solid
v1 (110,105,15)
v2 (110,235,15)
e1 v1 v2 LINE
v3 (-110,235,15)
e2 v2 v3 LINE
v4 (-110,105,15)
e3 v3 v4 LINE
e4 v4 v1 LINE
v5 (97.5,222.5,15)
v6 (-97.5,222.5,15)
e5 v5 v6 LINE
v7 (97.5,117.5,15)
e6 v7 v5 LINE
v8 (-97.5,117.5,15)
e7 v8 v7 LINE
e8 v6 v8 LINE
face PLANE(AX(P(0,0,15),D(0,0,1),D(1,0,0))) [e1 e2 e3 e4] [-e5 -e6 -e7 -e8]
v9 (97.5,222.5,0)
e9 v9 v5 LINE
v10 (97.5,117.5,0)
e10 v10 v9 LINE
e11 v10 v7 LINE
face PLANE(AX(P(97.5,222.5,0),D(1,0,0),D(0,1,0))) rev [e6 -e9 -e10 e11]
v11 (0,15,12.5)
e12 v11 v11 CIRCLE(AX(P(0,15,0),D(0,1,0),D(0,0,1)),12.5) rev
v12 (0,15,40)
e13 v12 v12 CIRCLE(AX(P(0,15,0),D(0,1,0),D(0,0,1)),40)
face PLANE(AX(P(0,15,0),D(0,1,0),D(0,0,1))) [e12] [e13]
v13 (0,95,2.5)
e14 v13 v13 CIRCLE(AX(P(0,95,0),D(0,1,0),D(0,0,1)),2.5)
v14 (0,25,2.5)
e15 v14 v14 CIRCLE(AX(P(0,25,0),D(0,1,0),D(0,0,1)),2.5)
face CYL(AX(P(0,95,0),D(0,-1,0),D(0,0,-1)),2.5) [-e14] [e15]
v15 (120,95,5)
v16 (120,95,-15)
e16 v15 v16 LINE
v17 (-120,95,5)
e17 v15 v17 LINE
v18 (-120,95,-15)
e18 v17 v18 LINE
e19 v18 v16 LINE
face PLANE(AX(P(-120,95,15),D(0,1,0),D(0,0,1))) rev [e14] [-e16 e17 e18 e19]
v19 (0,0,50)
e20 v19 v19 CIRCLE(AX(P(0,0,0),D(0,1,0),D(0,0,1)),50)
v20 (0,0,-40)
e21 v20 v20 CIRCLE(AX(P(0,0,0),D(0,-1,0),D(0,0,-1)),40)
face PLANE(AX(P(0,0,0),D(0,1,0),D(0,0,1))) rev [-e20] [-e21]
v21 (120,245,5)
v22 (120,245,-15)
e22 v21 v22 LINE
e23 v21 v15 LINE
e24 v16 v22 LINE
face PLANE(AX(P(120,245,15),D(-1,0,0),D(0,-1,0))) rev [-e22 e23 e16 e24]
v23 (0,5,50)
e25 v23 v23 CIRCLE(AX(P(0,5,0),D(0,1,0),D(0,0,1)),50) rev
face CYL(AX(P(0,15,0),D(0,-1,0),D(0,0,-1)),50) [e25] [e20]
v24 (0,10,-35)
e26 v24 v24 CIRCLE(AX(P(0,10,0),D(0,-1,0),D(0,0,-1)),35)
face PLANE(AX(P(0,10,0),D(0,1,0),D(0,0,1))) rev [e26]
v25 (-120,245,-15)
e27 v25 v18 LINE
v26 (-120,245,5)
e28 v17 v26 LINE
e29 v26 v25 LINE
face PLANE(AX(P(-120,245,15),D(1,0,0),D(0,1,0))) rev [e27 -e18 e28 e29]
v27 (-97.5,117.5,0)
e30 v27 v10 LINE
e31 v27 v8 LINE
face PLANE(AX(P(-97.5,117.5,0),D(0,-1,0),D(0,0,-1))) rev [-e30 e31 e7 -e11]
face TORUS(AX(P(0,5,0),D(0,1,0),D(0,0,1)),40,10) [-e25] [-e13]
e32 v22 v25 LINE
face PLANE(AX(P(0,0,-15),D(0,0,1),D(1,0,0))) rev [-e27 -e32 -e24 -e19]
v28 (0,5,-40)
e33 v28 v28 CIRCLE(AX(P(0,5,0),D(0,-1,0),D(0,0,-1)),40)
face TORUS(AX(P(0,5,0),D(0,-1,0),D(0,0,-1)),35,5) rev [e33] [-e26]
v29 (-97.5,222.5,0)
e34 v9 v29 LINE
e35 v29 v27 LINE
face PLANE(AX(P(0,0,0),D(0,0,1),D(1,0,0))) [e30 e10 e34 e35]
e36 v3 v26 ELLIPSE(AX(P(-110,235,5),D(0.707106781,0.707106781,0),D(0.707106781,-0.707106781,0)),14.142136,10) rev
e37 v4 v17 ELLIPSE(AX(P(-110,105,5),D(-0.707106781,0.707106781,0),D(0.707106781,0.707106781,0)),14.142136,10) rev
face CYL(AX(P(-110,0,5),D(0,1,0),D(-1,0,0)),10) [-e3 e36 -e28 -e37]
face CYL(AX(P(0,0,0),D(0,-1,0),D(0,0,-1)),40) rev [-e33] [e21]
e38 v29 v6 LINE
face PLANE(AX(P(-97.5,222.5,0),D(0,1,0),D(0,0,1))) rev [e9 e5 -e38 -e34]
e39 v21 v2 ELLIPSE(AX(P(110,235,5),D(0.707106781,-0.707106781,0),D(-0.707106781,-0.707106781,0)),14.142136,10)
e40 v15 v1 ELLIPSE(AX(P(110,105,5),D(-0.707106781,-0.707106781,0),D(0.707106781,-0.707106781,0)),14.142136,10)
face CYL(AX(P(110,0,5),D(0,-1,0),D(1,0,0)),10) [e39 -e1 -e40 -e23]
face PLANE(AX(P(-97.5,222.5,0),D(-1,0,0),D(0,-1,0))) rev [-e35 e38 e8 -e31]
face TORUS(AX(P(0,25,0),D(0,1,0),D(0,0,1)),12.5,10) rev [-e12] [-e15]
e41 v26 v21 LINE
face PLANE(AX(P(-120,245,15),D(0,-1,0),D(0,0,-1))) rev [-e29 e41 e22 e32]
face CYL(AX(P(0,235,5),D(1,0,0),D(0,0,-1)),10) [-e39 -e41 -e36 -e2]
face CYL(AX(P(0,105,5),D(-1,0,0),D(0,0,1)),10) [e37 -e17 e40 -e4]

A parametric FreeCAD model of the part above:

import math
import FreeCAD as App
import Part
import Sketcher
from FreeCAD import Vector
Q = App.Units.Quantity


def edges_at(feature, points):
    """Names of the edges that pass closest to the given points."""
    edges = feature.Shape.Edges
    near = lambda p: min(range(len(edges)), key=lambda i: edges[i].distToShape(Part.Vertex(*p))[0])
    return sorted({f"Edge{near(p) + 1}" for p in points})

doc = App.newDocument("Part")
params = doc.addObject("Spreadsheet::Sheet", "Params")
for row, (alias, value) in enumerate([
    ("sketch1_diameter", "100 mm"),
    ("pad1_length", "15 mm"),
    ("fillet_radius", "10 mm"),
    ("sketch2_radius", "5 mm"),
    ("sketch2_width", "40 mm"),
    ("sketch2_height", "5 mm"),
    ("groove_angle", "360 deg"),
    ("sketch3_diameter", "5 mm"),
    ("pad2_length", "80 mm"),
    ("fillet2_radius", "10 mm"),
    ("sketch4_width", "240 mm"),
    ("sketch4_height", "150 mm"),
    ("pad3_length", "30 mm"),
    ("sketch5_width", "195 mm"),
    ("sketch5_height", "105 mm"),
    ("pocket1_length", "15 mm"),
    ("fillet3_radius", "10 mm"),
], start=1):
    params.set(f"A{row}", alias)
    params.set(f"B{row}", "=" + value)
    params.setAlias(f"B{row}", alias)

body = doc.addObject("PartDesign::Body", "Body")

# Sketch on XZ plane
sketch1 = body.newObject("Sketcher::SketchObject", "Sketch")
sketch1.AttachmentSupport = (doc.getObject("XZ_Plane"), [""])
sketch1.MapMode = "FlatFace"
sketch1.addGeometry(Part.Circle(Vector(0, 0, 0), Vector(0, 0, 1), 50), False)
sketch1.addConstraint(Sketcher.Constraint("Coincident", 0, 3, -1, 1))
sketch1.addConstraint(Sketcher.Constraint("Diameter", 0, Q("100 mm")))
sketch1.setExpression("Constraints[1]", "Params.sketch1_diameter")
pad1 = body.newObject("PartDesign::Pad", "Pad")
pad1.Profile = sketch1
pad1.setExpression("Length", "Params.pad1_length")
pad1.Reversed = True
doc.recompute()

fillet = body.newObject("PartDesign::Fillet", "Fillet")
fillet.Base = (pad1, edges_at(pad1, [(0, 15, -50)]))
fillet.setExpression("Radius", "Params.fillet_radius")

# Sketch on XY plane
sketch2 = body.newObject("Sketcher::SketchObject", "Sketch001")
sketch2.AttachmentSupport = (doc.getObject("XY_Plane"), [""])
sketch2.MapMode = "FlatFace"
sketch2.addGeometry(Part.LineSegment(Vector(0, 0, 0), Vector(40, 0, 0)), False)
sketch2.addGeometry(Part.LineSegment(Vector(40, 0, 0), Vector(40, 5, 0)), False)
sketch2.addGeometry(Part.ArcOfCircle(Part.Circle(Vector(35, 5, 0), Vector(0, 0, 1), 5), math.radians(0), math.radians(90)), False)
sketch2.addGeometry(Part.LineSegment(Vector(35, 10, 0), Vector(0, 10, 0)), False)
sketch2.addGeometry(Part.LineSegment(Vector(0, 10, 0), Vector(0, 0, 0)), False)
sketch2.addConstraint(Sketcher.Constraint("Coincident", 0, 2, 1, 1))
sketch2.addConstraint(Sketcher.Constraint("Tangent", 1, 2, 2, 1))
sketch2.addConstraint(Sketcher.Constraint("Tangent", 2, 2, 3, 1))
sketch2.addConstraint(Sketcher.Constraint("Coincident", 3, 2, 4, 1))
sketch2.addConstraint(Sketcher.Constraint("Coincident", 4, 2, 0, 1))
sketch2.addConstraint(Sketcher.Constraint("Horizontal", 0))
sketch2.addConstraint(Sketcher.Constraint("Vertical", 1))
sketch2.addConstraint(Sketcher.Constraint("Horizontal", 3))
sketch2.addConstraint(Sketcher.Constraint("Vertical", 4))
sketch2.addConstraint(Sketcher.Constraint("Coincident", 4, 2, -1, 1))
sketch2.addConstraint(Sketcher.Constraint("Radius", 2, Q("5 mm")))
sketch2.addConstraint(Sketcher.Constraint("DistanceX", 0, 1, 0, 2, Q("40 mm")))
sketch2.addConstraint(Sketcher.Constraint("DistanceY", 1, 1, 1, 2, Q("5 mm")))
sketch2.setExpression("Constraints[10]", "Params.sketch2_radius")
sketch2.setExpression("Constraints[11]", "Params.sketch2_width")
sketch2.setExpression("Constraints[12]", "Params.sketch2_height")
groove = body.newObject("PartDesign::Groove", "Groove")
groove.Profile = sketch2
groove.ReferenceAxis = (sketch2, ["V_Axis"])
groove.setExpression("Angle", "Params.groove_angle")

# Sketch on XZ plane
sketch3 = body.newObject("Sketcher::SketchObject", "Sketch002")
sketch3.AttachmentSupport = (doc.getObject("XZ_Plane"), [""])
sketch3.MapMode = "FlatFace"
sketch3.AttachmentOffset = App.Placement(Vector(0, 0, -15), App.Rotation())
sketch3.addGeometry(Part.Circle(Vector(0, 0, 0), Vector(0, 0, 1), 2.5), False)
sketch3.addConstraint(Sketcher.Constraint("Coincident", 0, 3, -1, 1))
sketch3.addConstraint(Sketcher.Constraint("Diameter", 0, Q("5 mm")))
sketch3.setExpression("Constraints[1]", "Params.sketch3_diameter")
pad2 = body.newObject("PartDesign::Pad", "Pad001")
pad2.Profile = sketch3
pad2.setExpression("Length", "Params.pad2_length")
pad2.Reversed = True
doc.recompute()

fillet2 = body.newObject("PartDesign::Fillet", "Fillet001")
fillet2.Base = (pad2, edges_at(pad2, [(0, 15, -2.5)]))
fillet2.setExpression("Radius", "Params.fillet2_radius")

# Sketch on XY plane
sketch4 = body.newObject("Sketcher::SketchObject", "Sketch003")
sketch4.AttachmentSupport = (doc.getObject("XY_Plane"), [""])
sketch4.MapMode = "FlatFace"
sketch4.addGeometry(Part.LineSegment(Vector(-120, 245, 0), Vector(-120, 95, 0)), False)
sketch4.addGeometry(Part.LineSegment(Vector(-120, 95, 0), Vector(120, 95, 0)), False)
sketch4.addGeometry(Part.LineSegment(Vector(120, 95, 0), Vector(120, 245, 0)), False)
sketch4.addGeometry(Part.LineSegment(Vector(120, 245, 0), Vector(-120, 245, 0)), False)
sketch4.addConstraint(Sketcher.Constraint("Coincident", 0, 2, 1, 1))
sketch4.addConstraint(Sketcher.Constraint("Coincident", 1, 2, 2, 1))
sketch4.addConstraint(Sketcher.Constraint("Coincident", 2, 2, 3, 1))
sketch4.addConstraint(Sketcher.Constraint("Coincident", 3, 2, 0, 1))
sketch4.addConstraint(Sketcher.Constraint("Vertical", 0))
sketch4.addConstraint(Sketcher.Constraint("Horizontal", 1))
sketch4.addConstraint(Sketcher.Constraint("Vertical", 2))
sketch4.addConstraint(Sketcher.Constraint("Horizontal", 3))
sketch4.addConstraint(Sketcher.Constraint("DistanceX", 1, 1, 1, 2, Q("240 mm")))
sketch4.addConstraint(Sketcher.Constraint("DistanceY", 0, 2, 0, 1, Q("150 mm")))
sketch4.addConstraint(Sketcher.Constraint("DistanceX", 0, 2, -1, 1, Q("120 mm")))
sketch4.addConstraint(Sketcher.Constraint("DistanceY", -1, 1, 0, 2, Q("95 mm")))
sketch4.setExpression("Constraints[8]", "Params.sketch4_width")
sketch4.setExpression("Constraints[9]", "Params.sketch4_height")
pad3 = body.newObject("PartDesign::Pad", "Pad002")
pad3.Profile = sketch4
pad3.setExpression("Length", "Params.pad3_length")
pad3.Midplane = True

# Sketch on XY plane
sketch5 = body.newObject("Sketcher::SketchObject", "Sketch004")
sketch5.AttachmentSupport = (doc.getObject("XY_Plane"), [""])
sketch5.MapMode = "FlatFace"
sketch5.AttachmentOffset = App.Placement(Vector(0, 0, 15), App.Rotation())
sketch5.addGeometry(Part.LineSegment(Vector(-98, 222, 0), Vector(-98, 118, 0)), False)
sketch5.addGeometry(Part.LineSegment(Vector(-98, 118, 0), Vector(98, 118, 0)), False)
sketch5.addGeometry(Part.LineSegment(Vector(98, 118, 0), Vector(98, 222, 0)), False)
sketch5.addGeometry(Part.LineSegment(Vector(98, 222, 0), Vector(-98, 222, 0)), False)
sketch5.addConstraint(Sketcher.Constraint("Coincident", 0, 2, 1, 1))
sketch5.addConstraint(Sketcher.Constraint("Coincident", 1, 2, 2, 1))
sketch5.addConstraint(Sketcher.Constraint("Coincident", 2, 2, 3, 1))
sketch5.addConstraint(Sketcher.Constraint("Coincident", 3, 2, 0, 1))
sketch5.addConstraint(Sketcher.Constraint("Vertical", 0))
sketch5.addConstraint(Sketcher.Constraint("Horizontal", 1))
sketch5.addConstraint(Sketcher.Constraint("Vertical", 2))
sketch5.addConstraint(Sketcher.Constraint("Horizontal", 3))
sketch5.addConstraint(Sketcher.Constraint("DistanceX", 1, 1, 1, 2, Q("195 mm")))
sketch5.addConstraint(Sketcher.Constraint("DistanceY", 0, 2, 0, 1, Q("105 mm")))
sketch5.addConstraint(Sketcher.Constraint("DistanceX", 0, 2, -1, 1, Q("97.5 mm")))
sketch5.addConstraint(Sketcher.Constraint("DistanceY", -1, 1, 0, 2, Q("117.5 mm")))
sketch5.setExpression("Constraints[8]", "Params.sketch5_width")
sketch5.setExpression("Constraints[9]", "Params.sketch5_height")
pocket1 = body.newObject("PartDesign::Pocket", "Pocket")
pocket1.Profile = sketch5
pocket1.setExpression("Length", "Params.pocket1_length")
doc.recompute()

fillet3 = body.newObject("PartDesign::Fillet", "Fillet002")
fillet3.Base = (pocket1, edges_at(pocket1, [
    (-120, 170, 15),
    (0, 95, 15),
    (120, 170, 15),
    (0, 245, 15),
]))
fillet3.setExpression("Radius", "Params.fillet3_radius")

doc.recompute()
